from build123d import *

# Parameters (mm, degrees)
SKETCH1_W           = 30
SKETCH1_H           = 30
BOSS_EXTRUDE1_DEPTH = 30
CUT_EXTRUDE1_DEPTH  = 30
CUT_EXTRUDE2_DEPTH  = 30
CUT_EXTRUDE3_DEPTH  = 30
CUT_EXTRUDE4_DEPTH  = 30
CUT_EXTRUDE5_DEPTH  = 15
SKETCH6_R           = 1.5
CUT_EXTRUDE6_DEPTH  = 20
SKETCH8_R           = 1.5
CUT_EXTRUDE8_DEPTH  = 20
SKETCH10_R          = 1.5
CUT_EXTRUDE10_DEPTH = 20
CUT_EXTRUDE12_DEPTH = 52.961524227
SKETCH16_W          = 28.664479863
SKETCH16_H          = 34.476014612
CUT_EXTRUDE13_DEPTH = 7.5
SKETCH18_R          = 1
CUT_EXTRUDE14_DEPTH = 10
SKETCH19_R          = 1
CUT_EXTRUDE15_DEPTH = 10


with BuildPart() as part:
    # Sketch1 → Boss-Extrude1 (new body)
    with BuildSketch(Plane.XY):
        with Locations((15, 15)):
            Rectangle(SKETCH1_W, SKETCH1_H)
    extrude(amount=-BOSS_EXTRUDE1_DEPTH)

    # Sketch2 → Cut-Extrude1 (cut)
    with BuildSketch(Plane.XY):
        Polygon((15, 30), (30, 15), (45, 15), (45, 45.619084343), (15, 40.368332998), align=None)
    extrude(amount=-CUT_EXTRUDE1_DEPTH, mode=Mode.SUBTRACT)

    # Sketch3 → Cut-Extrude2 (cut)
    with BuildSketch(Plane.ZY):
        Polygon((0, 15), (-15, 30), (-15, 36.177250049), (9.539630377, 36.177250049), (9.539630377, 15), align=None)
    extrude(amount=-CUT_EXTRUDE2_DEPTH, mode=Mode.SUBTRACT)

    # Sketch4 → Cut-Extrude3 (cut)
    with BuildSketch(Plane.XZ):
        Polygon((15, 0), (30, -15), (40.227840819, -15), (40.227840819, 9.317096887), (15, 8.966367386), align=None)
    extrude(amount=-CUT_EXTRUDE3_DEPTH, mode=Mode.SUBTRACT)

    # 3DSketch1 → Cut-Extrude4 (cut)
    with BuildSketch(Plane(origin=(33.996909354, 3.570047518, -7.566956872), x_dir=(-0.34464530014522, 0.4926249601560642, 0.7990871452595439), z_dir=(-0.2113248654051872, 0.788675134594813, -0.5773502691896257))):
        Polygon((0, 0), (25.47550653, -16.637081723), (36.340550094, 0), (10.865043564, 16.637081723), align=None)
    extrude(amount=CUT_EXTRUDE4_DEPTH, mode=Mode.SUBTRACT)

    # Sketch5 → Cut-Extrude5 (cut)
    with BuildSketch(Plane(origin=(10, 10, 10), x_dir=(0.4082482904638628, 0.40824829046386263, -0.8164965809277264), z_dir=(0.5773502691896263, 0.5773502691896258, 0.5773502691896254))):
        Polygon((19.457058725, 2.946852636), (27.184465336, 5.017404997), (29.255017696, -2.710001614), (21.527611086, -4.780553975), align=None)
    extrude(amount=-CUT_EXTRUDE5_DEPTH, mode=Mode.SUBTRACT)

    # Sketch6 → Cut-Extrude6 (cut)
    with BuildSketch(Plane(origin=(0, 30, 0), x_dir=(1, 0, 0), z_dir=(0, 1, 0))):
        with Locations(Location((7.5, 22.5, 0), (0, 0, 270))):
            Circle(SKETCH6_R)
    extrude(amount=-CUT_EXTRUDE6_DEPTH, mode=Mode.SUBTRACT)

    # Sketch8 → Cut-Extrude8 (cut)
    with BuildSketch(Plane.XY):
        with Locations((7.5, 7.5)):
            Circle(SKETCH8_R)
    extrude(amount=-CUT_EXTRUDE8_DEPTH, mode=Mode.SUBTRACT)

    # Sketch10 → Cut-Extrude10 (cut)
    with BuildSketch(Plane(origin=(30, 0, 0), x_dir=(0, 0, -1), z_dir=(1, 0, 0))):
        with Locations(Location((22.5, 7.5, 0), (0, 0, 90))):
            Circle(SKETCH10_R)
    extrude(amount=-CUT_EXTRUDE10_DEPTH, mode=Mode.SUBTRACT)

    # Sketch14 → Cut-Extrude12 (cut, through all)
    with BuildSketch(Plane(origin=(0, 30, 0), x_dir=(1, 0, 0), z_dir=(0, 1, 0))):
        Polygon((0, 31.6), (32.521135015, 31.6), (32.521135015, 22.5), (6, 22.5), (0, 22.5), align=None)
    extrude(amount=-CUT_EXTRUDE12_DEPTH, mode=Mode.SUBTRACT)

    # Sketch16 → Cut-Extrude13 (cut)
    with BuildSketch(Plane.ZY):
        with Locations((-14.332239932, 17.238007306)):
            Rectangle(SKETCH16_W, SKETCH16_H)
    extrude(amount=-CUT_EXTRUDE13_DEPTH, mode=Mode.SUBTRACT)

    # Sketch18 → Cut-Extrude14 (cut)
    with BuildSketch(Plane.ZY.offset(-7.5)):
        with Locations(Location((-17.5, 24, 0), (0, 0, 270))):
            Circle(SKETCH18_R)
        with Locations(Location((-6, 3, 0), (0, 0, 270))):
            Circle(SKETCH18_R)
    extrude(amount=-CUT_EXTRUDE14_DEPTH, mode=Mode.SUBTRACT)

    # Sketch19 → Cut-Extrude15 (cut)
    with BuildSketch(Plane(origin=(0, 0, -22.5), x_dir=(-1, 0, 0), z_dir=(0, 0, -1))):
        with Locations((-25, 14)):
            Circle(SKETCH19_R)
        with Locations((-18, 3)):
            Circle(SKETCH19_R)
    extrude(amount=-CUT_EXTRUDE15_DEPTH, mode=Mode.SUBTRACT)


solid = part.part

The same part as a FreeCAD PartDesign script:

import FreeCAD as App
import Part
import Sketcher

V = App.Vector
Q = App.Units.Quantity

doc = App.newDocument("Part")
params = doc.addObject("Spreadsheet::Sheet", "Params")
for row, (alias, value) in enumerate([
    ("sketch1_width", "30 mm"),
    ("pad1_length", "30 mm"),
    ("sketch2_width", "15 mm"),
    ("pocket1_length", "30 mm"),
    ("pocket2_length", "30 mm"),
    ("pocket3_length", "30 mm"),
    ("pocket4_length", "30 mm"),
    ("sketch6_length", "8 mm"),
    ("pocket5_length", "15 mm"),
    ("sketch7_diameter", "3 mm"),
    ("pocket6_length", "20 mm"),
    ("sketch8_diameter", "3 mm"),
    ("pocket7_length", "20 mm"),
    ("sketch9_diameter", "3 mm"),
    ("pocket8_length", "20 mm"),
    ("sketch10_height", "9.1 mm"),
    ("pocket10_length", "7.5 mm"),
    ("sketch12_diameter", "2 mm"),
    ("pocket11_length", "10 mm"),
    ("sketch13_diameter", "2 mm"),
    ("pocket12_length", "10 mm"),
], start=1):
    params.set(f"A{row}", alias)
    params.set(f"B{row}", "=" + value)
    params.setAlias(f"B{row}", alias)

body = doc.addObject("PartDesign::Body", "Body")

# Sketch on XY plane
sketch1 = body.newObject("Sketcher::SketchObject", "Sketch")
sketch1.AttachmentSupport = (doc.getObject("XY_Plane"), [""])
sketch1.MapMode = "FlatFace"
sketch1.addGeometry([
    Part.LineSegment(V(0, 30, 0), V(0, 0, 0)),
    Part.LineSegment(V(0, 0, 0), V(30, 0, 0)),
    Part.LineSegment(V(30, 0, 0), V(30, 30, 0)),
    Part.LineSegment(V(30, 30, 0), V(0, 30, 0)),
], False)
sketch1.addConstraint([
    Sketcher.Constraint("Coincident", 0, 2, 1, 1),
    Sketcher.Constraint("Coincident", 1, 2, 2, 1),
    Sketcher.Constraint("Coincident", 2, 2, 3, 1),
    Sketcher.Constraint("Coincident", 3, 2, 0, 1),
    Sketcher.Constraint("Vertical", 0),
    Sketcher.Constraint("Horizontal", 1),
    Sketcher.Constraint("Vertical", 2),
    Sketcher.Constraint("Horizontal", 3),
    Sketcher.Constraint("Coincident", 0, 2, -1, 1),
    Sketcher.Constraint("Equal", 3, 0),
    Sketcher.Constraint("DistanceX", 1, 1, 1, 2, Q("30 mm")),
])
sketch1.setExpression("Constraints[10]", "Params.sketch1_width")
pad1 = body.newObject("PartDesign::Pad", "Pad")
pad1.Profile = sketch1
pad1.setExpression("Length", "Params.pad1_length")
pad1.Reversed = True

# Sketch on XY plane
sketch2 = body.newObject("Sketcher::SketchObject", "Sketch001")
sketch2.AttachmentSupport = (doc.getObject("XY_Plane"), [""])
sketch2.MapMode = "FlatFace"
sketch2.addGeometry([
    Part.LineSegment(V(15, 30, 0), V(30, 15, 0)),  # 0
    Part.LineSegment(V(30, 15, 0), V(45, 15, 0)),  # 1
    Part.LineSegment(V(45, 15, 0), V(45, 45.619084, 0)),  # 2
    Part.LineSegment(V(45, 45.619084, 0), V(15, 40.368333, 0)),  # 3
    Part.LineSegment(V(15, 40.368333, 0), V(15, 30, 0)),  # 4
], False)
sketch2.addConstraint([
    Sketcher.Constraint("Coincident", 0, 2, 1, 1),
    Sketcher.Constraint("Coincident", 1, 2, 2, 1),
    Sketcher.Constraint("Coincident", 2, 2, 3, 1),
    Sketcher.Constraint("Coincident", 3, 2, 4, 1),
    Sketcher.Constraint("Coincident", 4, 2, 0, 1),
    Sketcher.Constraint("Horizontal", 1),
    Sketcher.Constraint("Vertical", 2),
    Sketcher.Constraint("Vertical", 4),
    Sketcher.Constraint("DistanceX", 1, 1, 1, 2, Q("15 mm")),
    Sketcher.Constraint("Angle", 0, Q("-45 deg")),
    Sketcher.Constraint("DistanceX", -1, 1, 0, 2, Q("30 mm")),
    Sketcher.Constraint("DistanceY", -1, 1, 0, 2, Q("15 mm")),
    Sketcher.Constraint("DistanceX", -1, 1, 3, 2, Q("15 mm")),
    Sketcher.Constraint("Distance", 3, Q("30.45604 mm")),
    Sketcher.Constraint("DistanceY", 2, 1, 2, 2, Q("30.619084 mm")),
])
sketch2.setExpression("Constraints[8]", "Params.sketch2_width")
pocket1 = body.newObject("PartDesign::Pocket", "Pocket")
pocket1.Profile = sketch2
pocket1.setExpression("Length", "Params.pocket1_length")

# Sketch on YZ plane
sketch3 = body.newObject("Sketcher::SketchObject", "Sketch002")
sketch3.AttachmentSupport = (doc.getObject("YZ_Plane"), [""])
sketch3.MapMode = "FlatFace"
sketch3.addGeometry([
    Part.LineSegment(V(30, -15, 0), V(15, 0, 0)),  # 0
    Part.LineSegment(V(15, 0, 0), V(15, 9.53963, 0)),  # 1
    Part.LineSegment(V(15, 9.53963, 0), V(36.17725, 9.53963, 0)),  # 2
    Part.LineSegment(V(36.17725, 9.53963, 0), V(36.17725, -15, 0)),  # 3
    Part.LineSegment(V(36.17725, -15, 0), V(30, -15, 0)),  # 4
], False)
sketch3.addConstraint([
    Sketcher.Constraint("Coincident", 0, 2, 1, 1),
    Sketcher.Constraint("Coincident", 1, 2, 2, 1),
    Sketcher.Constraint("Coincident", 2, 2, 3, 1),
    Sketcher.Constraint("Coincident", 3, 2, 4, 1),
    Sketcher.Constraint("Coincident", 4, 2, 0, 1),
    Sketcher.Constraint("Vertical", 1),
    Sketcher.Constraint("Horizontal", 2),
    Sketcher.Constraint("Vertical", 3),
    Sketcher.Constraint("Horizontal", 4),
    Sketcher.Constraint("PointOnObject", 0, 2, -1),
    Sketcher.Constraint("Angle", 0, Q("135 deg")),
    Sketcher.Constraint("DistanceX", -1, 1, 0, 2, Q("15 mm")),
    Sketcher.Constraint("DistanceY", 3, 2, -1, 1, Q("15 mm")),
    Sketcher.Constraint("DistanceX", 2, 1, 2, 2, Q("21.17725 mm")),
    Sketcher.Constraint("DistanceY", 1, 1, 1, 2, Q("9.53963 mm")),
])
pocket2 = body.newObject("PartDesign::Pocket", "Pocket001")
pocket2.Profile = sketch3
pocket2.setExpression("Length", "Params.pocket2_length")
pocket2.Reversed = True

# Sketch on XZ plane
sketch4 = body.newObject("Sketcher::SketchObject", "Sketch003")
sketch4.AttachmentSupport = (doc.getObject("XZ_Plane"), [""])
sketch4.MapMode = "FlatFace"
sketch4.addGeometry([
    Part.LineSegment(V(15, 0, 0), V(30, -15, 0)),  # 0
    Part.LineSegment(V(30, -15, 0), V(40.227841, -15, 0)),  # 1
    Part.LineSegment(V(40.227841, -15, 0), V(40.227841, 9.317097, 0)),  # 2
    Part.LineSegment(V(40.227841, 9.317097, 0), V(15, 8.966367, 0)),  # 3
    Part.LineSegment(V(15, 8.966367, 0), V(15, 0, 0)),  # 4
], False)
sketch4.addConstraint([
    Sketcher.Constraint("Coincident", 0, 2, 1, 1),
    Sketcher.Constraint("Coincident", 1, 2, 2, 1),
    Sketcher.Constraint("Coincident", 2, 2, 3, 1),
    Sketcher.Constraint("Coincident", 3, 2, 4, 1),
    Sketcher.Constraint("Coincident", 4, 2, 0, 1),
    Sketcher.Constraint("Horizontal", 1),
    Sketcher.Constraint("Vertical", 2),
    Sketcher.Constraint("Vertical", 4),
    Sketcher.Constraint("PointOnObject", 4, 2, -1),
    Sketcher.Constraint("Angle", 0, Q("-45 deg")),
    Sketcher.Constraint("DistanceX", -1, 1, 0, 2, Q("30 mm")),
    Sketcher.Constraint("DistanceY", 0, 2, -1, 1, Q("15 mm")),
    Sketcher.Constraint("DistanceX", 1, 1, 1, 2, Q("10.227841 mm")),
    Sketcher.Constraint("Distance", 3, Q("25.230279 mm")),
    Sketcher.Constraint("DistanceY", 2, 1, 2, 2, Q("24.317097 mm")),
])
pocket3 = body.newObject("PartDesign::Pocket", "Pocket002")
pocket3.Profile = sketch4
pocket3.setExpression("Length", "Params.pocket3_length")

# Sketch on an angled plane
sketch5 = body.newObject("Sketcher::SketchObject", "Sketch004")
sketch5.Placement = App.Placement(V(33.996909, 3.570048, -7.566957), App.Rotation(V(-0.3446453, 0.49262496, 0.799087145), V(0.914637315, 0.36784804, 0.167709275), V(-0.211324865, 0.788675135, -0.577350269), "ZXY"))
sketch5.addGeometry([
    Part.LineSegment(V(0, 0, 0), V(25.475507, -16.637082, 0)),
    Part.LineSegment(V(25.475507, -16.637082, 0), V(36.34055, 0, 0)),
    Part.LineSegment(V(36.34055, 0, 0), V(10.865044, 16.637082, 0)),
    Part.LineSegment(V(10.865044, 16.637082, 0), V(0, 0, 0)),
], False)
sketch5.addConstraint([
    Sketcher.Constraint("Coincident", 0, 2, 1, 1),
    Sketcher.Constraint("Coincident", 1, 2, 2, 1),
    Sketcher.Constraint("Coincident", 2, 2, 3, 1),
    Sketcher.Constraint("Coincident", 3, 2, 0, 1),
    Sketcher.Constraint("Coincident", 3, 2, -1, 1),
    Sketcher.Constraint("PointOnObject", 1, 2, -1),
    Sketcher.Constraint("Perpendicular", 0, 1),
    Sketcher.Constraint("Perpendicular", 1, 2),
    Sketcher.Constraint("Perpendicular", 2, 3),
    Sketcher.Constraint("Distance", 0, Q("30.426862 mm")),
    Sketcher.Constraint("DistanceY", 0, 2, -1, 1, Q("16.637082 mm")),
])
pocket4 = body.newObject("PartDesign::Pocket", "Pocket003")
pocket4.Profile = sketch5
pocket4.setExpression("Length", "Params.pocket4_length")
pocket4.Reversed = True

# Sketch on an angled plane
sketch6 = body.newObject("Sketcher::SketchObject", "Sketch005")
sketch6.Placement = App.Placement(V(10, 10, 10), App.Rotation(V(0.40824829, 0.40824829, -0.816496581), V(-0.707106781, 0.707106781, 0), V(0.577350269, 0.577350269, 0.577350269), "ZXY"))
sketch6.addGeometry([
    Part.LineSegment(V(27.184465, 5.017405, 0), V(19.457059, 2.946853, 0)),
    Part.LineSegment(V(19.457059, 2.946853, 0), V(21.527611, -4.780554, 0)),
    Part.LineSegment(V(21.527611, -4.780554, 0), V(29.255018, -2.710002, 0)),
    Part.LineSegment(V(29.255018, -2.710002, 0), V(27.184465, 5.017405, 0)),
], False)
sketch6.addConstraint([
    Sketcher.Constraint("Coincident", 0, 2, 1, 1),
    Sketcher.Constraint("Coincident", 1, 2, 2, 1),
    Sketcher.Constraint("Coincident", 2, 2, 3, 1),
    Sketcher.Constraint("Coincident", 3, 2, 0, 1),
    Sketcher.Constraint("Perpendicular", 0, 1),
    Sketcher.Constraint("Perpendicular", 1, 2),
    Sketcher.Constraint("Perpendicular", 2, 3),
    Sketcher.Constraint("Equal", 0, 1),
    Sketcher.Constraint("Angle", 0, Q("-165 deg")),
    Sketcher.Constraint("Distance", 0, Q("8 mm")),
    Sketcher.Constraint("DistanceY", 2, 2, -1, 1, Q("2.710002 mm")),
    Sketcher.Constraint("DistanceX", -1, 1, 0, 2, Q("19.457059 mm")),
])
sketch6.setExpression("Constraints[9]", "Params.sketch6_length")
pocket5 = body.newObject("PartDesign::Pocket", "Pocket004")
pocket5.Profile = sketch6
pocket5.setExpression("Length", "Params.pocket5_length")

# Sketch on XZ plane
sketch7 = body.newObject("Sketcher::SketchObject", "Sketch006")
sketch7.AttachmentSupport = (doc.getObject("XZ_Plane"), [""])
sketch7.MapMode = "FlatFace"
sketch7.AttachmentOffset = App.Placement(V(0, 0, -30), App.Rotation())
sketch7.addGeometry(Part.Circle(V(7.5, -22.5, 0), V(0, 0, 1), 1.5), False)
sketch7.addConstraint([
    Sketcher.Constraint("Diameter", 0, Q("3 mm")),
    Sketcher.Constraint("DistanceX", -1, 1, 0, 3, Q("7.5 mm")),
    Sketcher.Constraint("DistanceY", 0, 3, -1, 1, Q("22.5 mm")),
])
sketch7.setExpression("Constraints[0]", "Params.sketch7_diameter")
pocket6 = body.newObject("PartDesign::Pocket", "Pocket005")
pocket6.Profile = sketch7
pocket6.setExpression("Length", "Params.pocket6_length")
pocket6.Reversed = True

# Sketch on XY plane
sketch8 = body.newObject("Sketcher::SketchObject", "Sketch007")
sketch8.AttachmentSupport = (doc.getObject("XY_Plane"), [""])
sketch8.MapMode = "FlatFace"
sketch8.addGeometry(Part.Circle(V(7.5, 7.5, 0), V(0, 0, 1), 1.5), False)
sketch8.addConstraint([
    Sketcher.Constraint("Diameter", 0, Q("3 mm")),
    Sketcher.Constraint("DistanceX", -1, 1, 0, 3, Q("7.5 mm")),
    Sketcher.Constraint("DistanceY", -1, 1, 0, 3, Q("7.5 mm")),
])
sketch8.setExpression("Constraints[0]", "Params.sketch8_diameter")
pocket7 = body.newObject("PartDesign::Pocket", "Pocket006")
pocket7.Profile = sketch8
pocket7.setExpression("Length", "Params.pocket7_length")

# Sketch on YZ plane
sketch9 = body.newObject("Sketcher::SketchObject", "Sketch008")
sketch9.AttachmentSupport = (doc.getObject("YZ_Plane"), [""])
sketch9.MapMode = "FlatFace"
sketch9.AttachmentOffset = App.Placement(V(0, 0, 30), App.Rotation())
sketch9.addGeometry(Part.Circle(V(7.5, -22.5, 0), V(0, 0, 1), 1.5), False)
sketch9.addConstraint([
    Sketcher.Constraint("Diameter", 0, Q("3 mm")),
    Sketcher.Constraint("DistanceX", -1, 1, 0, 3, Q("7.5 mm")),
    Sketcher.Constraint("DistanceY", 0, 3, -1, 1, Q("22.5 mm")),
])
sketch9.setExpression("Constraints[0]", "Params.sketch9_diameter")
pocket8 = body.newObject("PartDesign::Pocket", "Pocket007")
pocket8.Profile = sketch9
pocket8.setExpression("Length", "Params.pocket8_length")

# Sketch on XZ plane
sketch10 = body.newObject("Sketcher::SketchObject", "Sketch009")
sketch10.AttachmentSupport = (doc.getObject("XZ_Plane"), [""])
sketch10.MapMode = "FlatFace"
sketch10.AttachmentOffset = App.Placement(V(0, 0, -30), App.Rotation())
sketch10.addGeometry([
    Part.LineSegment(V(32.521135, -31.6, 0), V(0, -31.6, 0)),
    Part.LineSegment(V(0, -31.6, 0), V(0, -22.5, 0)),
    Part.LineSegment(V(0, -22.5, 0), V(32.521135, -22.5, 0)),
    Part.LineSegment(V(32.521135, -22.5, 0), V(32.521135, -31.6, 0)),
], False)
sketch10.addConstraint([
    Sketcher.Constraint("Coincident", 0, 2, 1, 1),
    Sketcher.Constraint("Coincident", 1, 2, 2, 1),
    Sketcher.Constraint("Coincident", 2, 2, 3, 1),
    Sketcher.Constraint("Coincident", 3, 2, 0, 1),
    Sketcher.Constraint("Horizontal", 0),
    Sketcher.Constraint("Vertical", 1),
    Sketcher.Constraint("Horizontal", 2),
    Sketcher.Constraint("Vertical", 3),
    Sketcher.Constraint("PointOnObject", 0, 2, -2),
    Sketcher.Constraint("DistanceY", 1, 1, 1, 2, Q("9.1 mm")),
    Sketcher.Constraint("DistanceY", 0, 2, -1, 1, Q("31.6 mm")),
    Sketcher.Constraint("DistanceX", 0, 2, 0, 1, Q("32.521135 mm")),
])
sketch10.setExpression("Constraints[9]", "Params.sketch10_height")
pocket9 = body.newObject("PartDesign::Pocket", "Pocket008")
pocket9.Profile = sketch10
pocket9.Type = "ThroughAll"
pocket9.Reversed = True

# Sketch on YZ plane
sketch11 = body.newObject("Sketcher::SketchObject", "Sketch010")
sketch11.AttachmentSupport = (doc.getObject("YZ_Plane"), [""])
sketch11.MapMode = "FlatFace"
sketch11.addGeometry([
    Part.LineSegment(V(34.476015, -28.66448, 0), V(0, -28.66448, 0)),
    Part.LineSegment(V(0, -28.66448, 0), V(0, 0, 0)),
    Part.LineSegment(V(0, 0, 0), V(34.476015, 0, 0)),
    Part.LineSegment(V(34.476015, 0, 0), V(34.476015, -28.66448, 0)),
], False)
sketch11.addConstraint([
    Sketcher.Constraint("Coincident", 0, 2, 1, 1),
    Sketcher.Constraint("Coincident", 1, 2, 2, 1),
    Sketcher.Constraint("Coincident", 2, 2, 3, 1),
    Sketcher.Constraint("Coincident", 3, 2, 0, 1),
    Sketcher.Constraint("Horizontal", 0),
    Sketcher.Constraint("Vertical", 1),
    Sketcher.Constraint("Horizontal", 2),
    Sketcher.Constraint("Vertical", 3),
    Sketcher.Constraint("Coincident", 1, 2, -1, 1),
    Sketcher.Constraint("DistanceY", 1, 1, 1, 2, Q("28.66448 mm")),
    Sketcher.Constraint("DistanceX", 0, 2, 0, 1, Q("34.476015 mm")),
])
pocket10 = body.newObject("PartDesign::Pocket", "Pocket009")
pocket10.Profile = sketch11
pocket10.setExpression("Length", "Params.pocket10_length")
pocket10.Reversed = True

# Sketch on YZ plane
sketch12 = body.newObject("Sketcher::SketchObject", "Sketch011")
sketch12.AttachmentSupport = (doc.getObject("YZ_Plane"), [""])
sketch12.MapMode = "FlatFace"
sketch12.AttachmentOffset = App.Placement(V(0, 0, 7.5), App.Rotation())
sketch12.addGeometry([
    Part.Circle(V(24, -17.5, 0), V(0, 0, 1), 1),
    Part.Circle(V(3, -6, 0), V(0, 0, 1), 1),
], False)
sketch12.addConstraint([
    Sketcher.Constraint("Equal", 0, 1),
    Sketcher.Constraint("Diameter", 0, Q("2 mm")),
    Sketcher.Constraint("DistanceX", -1, 1, 0, 3, Q("24 mm")),
    Sketcher.Constraint("DistanceX", -1, 1, 1, 3, Q("3 mm")),
    Sketcher.Constraint("DistanceY", 1, 3, -1, 1, Q("6 mm")),
    Sketcher.Constraint("DistanceY", 0, 3, -1, 1, Q("17.5 mm")),
])
sketch12.setExpression("Constraints[1]", "Params.sketch12_diameter")
pocket11 = body.newObject("PartDesign::Pocket", "Pocket010")
pocket11.Profile = sketch12
pocket11.setExpression("Length", "Params.pocket11_length")
pocket11.Reversed = True

# Sketch on XY plane
sketch13 = body.newObject("Sketcher::SketchObject", "Sketch012")
sketch13.AttachmentSupport = (doc.getObject("XY_Plane"), [""])
sketch13.MapMode = "FlatFace"
sketch13.AttachmentOffset = App.Placement(V(0, 0, -22.5), App.Rotation())
sketch13.addGeometry([
    Part.Circle(V(25, 14, 0), V(0, 0, 1), 1),
    Part.Circle(V(18, 3, 0), V(0, 0, 1), 1),
], False)
sketch13.addConstraint([
    Sketcher.Constraint("Equal", 0, 1),
    Sketcher.Constraint("Diameter", 0, Q("2 mm")),
    Sketcher.Constraint("DistanceX", -1, 1, 0, 3, Q("25 mm")),
    Sketcher.Constraint("DistanceY", -1, 1, 0, 3, Q("14 mm")),
    Sketcher.Constraint("DistanceX", -1, 1, 1, 3, Q("18 mm")),
    Sketcher.Constraint("DistanceY", -1, 1, 1, 3, Q("3 mm")),
])
sketch13.setExpression("Constraints[1]", "Params.sketch13_diameter")
pocket12 = body.newObject("PartDesign::Pocket", "Pocket011")
pocket12.Profile = sketch13
pocket12.setExpression("Length", "Params.pocket12_length")
pocket12.Reversed = True

doc.recompute()
